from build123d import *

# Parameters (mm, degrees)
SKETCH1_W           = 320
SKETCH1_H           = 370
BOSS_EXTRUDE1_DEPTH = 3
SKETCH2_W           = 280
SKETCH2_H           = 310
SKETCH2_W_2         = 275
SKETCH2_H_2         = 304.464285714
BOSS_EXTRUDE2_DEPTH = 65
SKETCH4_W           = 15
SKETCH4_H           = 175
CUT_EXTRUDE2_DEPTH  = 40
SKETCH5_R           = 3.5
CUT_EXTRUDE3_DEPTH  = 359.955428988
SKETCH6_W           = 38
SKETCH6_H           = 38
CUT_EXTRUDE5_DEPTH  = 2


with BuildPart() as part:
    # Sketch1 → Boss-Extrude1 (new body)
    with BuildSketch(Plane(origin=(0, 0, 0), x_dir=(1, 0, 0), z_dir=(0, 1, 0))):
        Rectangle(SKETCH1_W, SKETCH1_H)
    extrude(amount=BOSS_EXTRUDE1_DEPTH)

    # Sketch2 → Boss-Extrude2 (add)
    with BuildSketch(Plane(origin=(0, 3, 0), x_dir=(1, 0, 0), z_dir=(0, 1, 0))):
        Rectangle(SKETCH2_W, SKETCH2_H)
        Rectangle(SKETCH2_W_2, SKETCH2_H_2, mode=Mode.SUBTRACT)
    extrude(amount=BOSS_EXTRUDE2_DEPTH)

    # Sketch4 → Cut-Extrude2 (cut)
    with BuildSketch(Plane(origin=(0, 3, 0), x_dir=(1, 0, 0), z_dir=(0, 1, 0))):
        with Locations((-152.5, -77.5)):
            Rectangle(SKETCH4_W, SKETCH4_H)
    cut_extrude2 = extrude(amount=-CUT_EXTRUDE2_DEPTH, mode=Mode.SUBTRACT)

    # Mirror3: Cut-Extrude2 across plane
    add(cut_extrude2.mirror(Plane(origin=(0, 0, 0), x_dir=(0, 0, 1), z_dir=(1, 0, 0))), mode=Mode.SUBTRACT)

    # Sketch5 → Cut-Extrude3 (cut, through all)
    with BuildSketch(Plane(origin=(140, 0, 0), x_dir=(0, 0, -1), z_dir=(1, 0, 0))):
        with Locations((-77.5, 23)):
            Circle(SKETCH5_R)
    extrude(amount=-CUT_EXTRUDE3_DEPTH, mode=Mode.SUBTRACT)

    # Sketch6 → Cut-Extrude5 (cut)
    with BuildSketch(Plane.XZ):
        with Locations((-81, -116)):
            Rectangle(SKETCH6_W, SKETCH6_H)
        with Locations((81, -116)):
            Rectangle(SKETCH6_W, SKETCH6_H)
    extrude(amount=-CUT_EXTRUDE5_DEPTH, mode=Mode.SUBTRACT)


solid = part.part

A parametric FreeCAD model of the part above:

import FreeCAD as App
import Part
import Sketcher


def add_polygon(sketch, points):
    """Adds a closed chain of lines whose ends are joined by coincident constraints."""
    first, n = sketch.GeometryCount, len(points)
    for a, b in zip(points, points[1:] + points[:1]):
        sketch.addGeometry(Part.LineSegment(App.Vector(*a, 0), App.Vector(*b, 0)), False)
    for i in range(n):
        sketch.addConstraint(Sketcher.Constraint("Coincident", first + i, 2, first + (i + 1) % n, 1))

doc = App.newDocument("Part")
body = doc.addObject("PartDesign::Body", "Body")

# Sketch on XZ plane
sketch1 = body.newObject("Sketcher::SketchObject", "Sketch")
sketch1.AttachmentSupport = (doc.getObject("XZ_Plane"), [""])
sketch1.MapMode = "FlatFace"
add_polygon(sketch1, [(-160, -185), (-160, 185), (160, 185), (160, -185)])  # lines 0-3
sketch1.addConstraint([
    Sketcher.Constraint("Vertical", 0),
    Sketcher.Constraint("Horizontal", 1),
    Sketcher.Constraint("Vertical", 2),
    Sketcher.Constraint("Horizontal", 3),
    Sketcher.Constraint("Symmetric", 0, 2, 2, 2, -1, 1),
    Sketcher.Constraint("DistanceX", 1, 1, 1, 2, 320.0),
    Sketcher.Constraint("DistanceY", 0, 1, 0, 2, 370.0),
])
pad1 = body.newObject("PartDesign::Pad", "Pad")
pad1.Profile = sketch1
pad1.Length = 3
pad1.Reversed = True

# Sketch on XZ plane
sketch2 = body.newObject("Sketcher::SketchObject", "Sketch001")
sketch2.AttachmentSupport = (doc.getObject("XZ_Plane"), [""])
sketch2.MapMode = "FlatFace"
sketch2.AttachmentOffset = App.Placement(App.Vector(0, 0, -3), App.Rotation())
add_polygon(sketch2, [(-140, -155), (-140, 155), (140, 155), (140, -155)])  # lines 0-3
add_polygon(sketch2, [(137.5, 152.232143), (-137.5, 152.232143), (-137.5, -152.232143), (137.5, -152.232143)])  # lines 4-7
sketch2.addConstraint([
    Sketcher.Constraint("Vertical", 0),
    Sketcher.Constraint("Horizontal", 1),
    Sketcher.Constraint("Vertical", 2),
    Sketcher.Constraint("Horizontal", 3),
    Sketcher.Constraint("Horizontal", 4),
    Sketcher.Constraint("Vertical", 5),
    Sketcher.Constraint("Horizontal", 6),
    Sketcher.Constraint("Vertical", 7),
    Sketcher.Constraint("Symmetric", 0, 2, 2, 2, -1, 1),
    Sketcher.Constraint("Symmetric", 4, 2, 6, 2, -1, 1),
    Sketcher.Constraint("DistanceX", 1, 1, 1, 2, 280.0),
    Sketcher.Constraint("DistanceX", 4, 2, 4, 1, 275.0),
    Sketcher.Constraint("DistanceY", 0, 1, 0, 2, 310.0),
    Sketcher.Constraint("DistanceY", 5, 2, 5, 1, 304.464286),
])
pad2 = body.newObject("PartDesign::Pad", "Pad001")
pad2.Profile = sketch2
pad2.Length = 65
pad2.Reversed = True

# Sketch on XZ plane
sketch3 = body.newObject("Sketcher::SketchObject", "Sketch002")
sketch3.AttachmentSupport = (doc.getObject("XZ_Plane"), [""])
sketch3.MapMode = "FlatFace"
sketch3.AttachmentOffset = App.Placement(App.Vector(0, 0, -3), App.Rotation())
add_polygon(sketch3, [(-160, -10), (-160, 165), (-145, 165), (-145, -10)])  # lines 0-3
sketch3.addConstraint([
    Sketcher.Constraint("Vertical", 0),
    Sketcher.Constraint("Horizontal", 1),
    Sketcher.Constraint("Vertical", 2),
    Sketcher.Constraint("Horizontal", 3),
    Sketcher.Constraint("DistanceX", 1, 1, 1, 2, 15.0),
    Sketcher.Constraint("DistanceY", 0, 1, 0, 2, 175.0),
    Sketcher.Constraint("DistanceX", 0, 2, -1, 1, 160.0),
    Sketcher.Constraint("DistanceY", -1, 1, 0, 2, 165.0),
])
pocket1 = body.newObject("PartDesign::Pocket", "Pocket")
pocket1.Profile = sketch3
pocket1.Length = 40
pocket1.Reversed = True
doc.recompute()

mirrored = body.newObject("PartDesign::Mirrored", "Mirrored")
mirrored.Originals = [pocket1]
mirrored.MirrorPlane = (doc.getObject("YZ_Plane"), [""])
body.Tip = mirrored

# Sketch on YZ plane
sketch4 = body.newObject("Sketcher::SketchObject", "Sketch003")
sketch4.AttachmentSupport = (doc.getObject("YZ_Plane"), [""])
sketch4.MapMode = "FlatFace"
sketch4.AttachmentOffset = App.Placement(App.Vector(0, 0, 140), App.Rotation())
sketch4.addGeometry(Part.Circle(App.Vector(23, 77.5, 0), App.Vector(0, 0, 1), 3.5), False)
sketch4.addConstraint([
    Sketcher.Constraint("Diameter", 0, 7.0),
    Sketcher.Constraint("DistanceX", -1, 1, 0, 3, 23.0),
    Sketcher.Constraint("DistanceY", -1, 1, 0, 3, 77.5),
])
pocket2 = body.newObject("PartDesign::Pocket", "Pocket001")
pocket2.Profile = sketch4
pocket2.Type = "ThroughAll"

# Sketch on XZ plane
sketch5 = body.newObject("Sketcher::SketchObject", "Sketch004")
sketch5.AttachmentSupport = (doc.getObject("XZ_Plane"), [""])
sketch5.MapMode = "FlatFace"
add_polygon(sketch5, [(-100, -97), (-100, -135), (-62, -135), (-62, -97)])  # lines 0-3
add_polygon(sketch5, [(62, -97), (62, -135), (100, -135), (100, -97)])  # lines 4-7
sketch5.addConstraint([
    Sketcher.Constraint("Vertical", 0),
    Sketcher.Constraint("Horizontal", 1),
    Sketcher.Constraint("Vertical", 2),
    Sketcher.Constraint("Horizontal", 3),
    Sketcher.Constraint("Vertical", 4),
    Sketcher.Constraint("Horizontal", 5),
    Sketcher.Constraint("Vertical", 6),
    Sketcher.Constraint("Horizontal", 7),
    Sketcher.Constraint("Symmetric", 1, 2, 4, 2, -2),
    Sketcher.Constraint("Symmetric", 3, 2, 6, 2, -2),
    Sketcher.Constraint("Equal", 7, 0),
    Sketcher.Constraint("DistanceX", 1, 1, 1, 2, 38.0),
    Sketcher.Constraint("DistanceX", 0, 2, -1, 1, 100.0),
    Sketcher.Constraint("DistanceY", 0, 2, -1, 1, 135.0),
])
pocket3 = body.newObject("PartDesign::Pocket", "Pocket002")
pocket3.Profile = sketch5
pocket3.Length = 2

doc.recompute()
